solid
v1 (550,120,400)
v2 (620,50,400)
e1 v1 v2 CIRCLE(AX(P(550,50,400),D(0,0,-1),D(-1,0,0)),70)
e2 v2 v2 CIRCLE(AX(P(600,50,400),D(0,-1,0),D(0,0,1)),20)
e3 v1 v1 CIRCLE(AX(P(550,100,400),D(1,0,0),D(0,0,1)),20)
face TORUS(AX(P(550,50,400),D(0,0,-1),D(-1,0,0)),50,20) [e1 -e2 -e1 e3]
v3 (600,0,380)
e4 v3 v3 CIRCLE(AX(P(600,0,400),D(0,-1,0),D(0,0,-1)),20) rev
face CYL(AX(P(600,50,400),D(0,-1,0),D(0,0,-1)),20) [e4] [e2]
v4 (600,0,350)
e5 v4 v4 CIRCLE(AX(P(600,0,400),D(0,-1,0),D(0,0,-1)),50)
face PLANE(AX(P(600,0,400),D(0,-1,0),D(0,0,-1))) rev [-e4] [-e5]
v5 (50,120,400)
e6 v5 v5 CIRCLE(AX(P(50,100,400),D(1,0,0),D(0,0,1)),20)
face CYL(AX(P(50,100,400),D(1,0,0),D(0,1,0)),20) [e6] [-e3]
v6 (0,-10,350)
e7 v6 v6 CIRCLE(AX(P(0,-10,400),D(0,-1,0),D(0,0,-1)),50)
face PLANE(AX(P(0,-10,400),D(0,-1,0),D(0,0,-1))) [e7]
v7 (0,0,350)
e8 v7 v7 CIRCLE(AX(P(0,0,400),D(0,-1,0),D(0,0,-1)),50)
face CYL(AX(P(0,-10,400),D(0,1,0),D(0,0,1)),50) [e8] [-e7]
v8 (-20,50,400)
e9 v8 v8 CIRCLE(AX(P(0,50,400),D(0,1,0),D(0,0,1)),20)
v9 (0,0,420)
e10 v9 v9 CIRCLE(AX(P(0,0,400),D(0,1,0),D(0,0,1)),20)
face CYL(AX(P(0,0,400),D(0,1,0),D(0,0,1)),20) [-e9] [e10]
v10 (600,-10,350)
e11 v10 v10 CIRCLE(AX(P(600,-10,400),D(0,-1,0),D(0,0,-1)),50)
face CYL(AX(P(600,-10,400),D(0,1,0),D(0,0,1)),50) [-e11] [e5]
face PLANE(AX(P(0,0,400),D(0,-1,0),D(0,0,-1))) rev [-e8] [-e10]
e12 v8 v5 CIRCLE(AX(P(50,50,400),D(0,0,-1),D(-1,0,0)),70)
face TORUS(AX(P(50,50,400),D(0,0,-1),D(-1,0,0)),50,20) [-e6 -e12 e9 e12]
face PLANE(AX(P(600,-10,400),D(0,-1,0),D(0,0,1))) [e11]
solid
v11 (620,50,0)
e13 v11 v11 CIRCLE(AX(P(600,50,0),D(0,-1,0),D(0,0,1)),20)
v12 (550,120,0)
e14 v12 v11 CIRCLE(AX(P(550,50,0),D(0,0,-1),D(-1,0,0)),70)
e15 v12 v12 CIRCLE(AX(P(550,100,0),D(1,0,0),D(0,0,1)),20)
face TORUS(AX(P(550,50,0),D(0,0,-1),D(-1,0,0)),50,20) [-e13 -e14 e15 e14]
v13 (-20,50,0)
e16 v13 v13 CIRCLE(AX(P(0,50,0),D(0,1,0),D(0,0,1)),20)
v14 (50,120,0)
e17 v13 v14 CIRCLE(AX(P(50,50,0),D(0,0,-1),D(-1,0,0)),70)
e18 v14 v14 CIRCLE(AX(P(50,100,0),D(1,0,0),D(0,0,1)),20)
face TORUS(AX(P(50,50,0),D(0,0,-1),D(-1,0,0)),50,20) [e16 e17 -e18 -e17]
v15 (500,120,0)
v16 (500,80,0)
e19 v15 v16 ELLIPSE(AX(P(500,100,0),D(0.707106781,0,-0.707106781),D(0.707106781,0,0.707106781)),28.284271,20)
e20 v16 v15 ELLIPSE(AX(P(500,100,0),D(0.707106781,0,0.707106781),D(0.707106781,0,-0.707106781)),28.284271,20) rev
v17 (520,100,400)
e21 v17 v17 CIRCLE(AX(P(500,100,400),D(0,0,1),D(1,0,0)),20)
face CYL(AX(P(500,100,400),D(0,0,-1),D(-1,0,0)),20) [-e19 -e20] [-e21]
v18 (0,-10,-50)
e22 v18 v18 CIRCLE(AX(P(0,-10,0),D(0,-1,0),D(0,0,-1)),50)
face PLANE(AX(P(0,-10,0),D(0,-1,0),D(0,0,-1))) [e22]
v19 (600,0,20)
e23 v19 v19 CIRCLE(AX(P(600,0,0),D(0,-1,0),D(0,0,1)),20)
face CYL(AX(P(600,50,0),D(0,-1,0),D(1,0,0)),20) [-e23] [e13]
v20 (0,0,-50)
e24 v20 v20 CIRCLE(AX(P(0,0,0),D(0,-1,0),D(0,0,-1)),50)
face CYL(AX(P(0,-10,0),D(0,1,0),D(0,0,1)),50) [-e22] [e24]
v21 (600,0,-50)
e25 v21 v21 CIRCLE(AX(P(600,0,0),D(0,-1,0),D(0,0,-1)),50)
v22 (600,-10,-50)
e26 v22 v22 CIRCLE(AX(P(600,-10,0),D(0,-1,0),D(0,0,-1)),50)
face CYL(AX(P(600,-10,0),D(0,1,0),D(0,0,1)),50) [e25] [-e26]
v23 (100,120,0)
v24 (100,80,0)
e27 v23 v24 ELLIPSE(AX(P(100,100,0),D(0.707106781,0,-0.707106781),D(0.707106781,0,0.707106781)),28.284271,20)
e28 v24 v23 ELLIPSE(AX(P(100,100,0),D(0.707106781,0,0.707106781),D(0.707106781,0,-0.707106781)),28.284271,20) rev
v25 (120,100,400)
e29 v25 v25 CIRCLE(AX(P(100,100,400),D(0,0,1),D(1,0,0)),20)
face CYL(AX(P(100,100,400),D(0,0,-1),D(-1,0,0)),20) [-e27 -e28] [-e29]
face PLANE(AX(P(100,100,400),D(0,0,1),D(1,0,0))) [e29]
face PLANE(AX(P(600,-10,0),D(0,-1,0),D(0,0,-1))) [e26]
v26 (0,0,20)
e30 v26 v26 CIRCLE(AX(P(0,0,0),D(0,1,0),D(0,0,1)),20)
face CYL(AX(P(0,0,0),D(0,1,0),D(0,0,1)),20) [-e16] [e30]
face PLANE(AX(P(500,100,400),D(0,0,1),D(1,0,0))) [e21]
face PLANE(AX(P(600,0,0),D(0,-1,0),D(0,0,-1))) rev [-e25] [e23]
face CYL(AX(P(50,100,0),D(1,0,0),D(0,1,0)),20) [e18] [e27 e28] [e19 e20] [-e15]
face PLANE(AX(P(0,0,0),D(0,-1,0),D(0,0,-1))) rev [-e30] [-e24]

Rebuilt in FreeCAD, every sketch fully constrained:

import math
import FreeCAD as App
import Part
import Sketcher

V = App.Vector
Q = App.Units.Quantity

doc = App.newDocument("Part")
params = doc.addObject("Spreadsheet::Sheet", "Params")
for row, (alias, value) in enumerate([
    ("sketch1_diameter", "40 mm"),
    ("sketch2_radius", "50 mm"),
    ("sketch2_width", "500 mm"),
    ("sketch2_height", "50 mm"),
    ("sketch3_diameter", "100 mm"),
    ("pad1_length", "10 mm"),
    ("sketch4_diameter", "40 mm"),
    ("pad2_length", "400 mm"),
    ("sketch5_diameter", "40 mm"),
    ("sketch6_radius", "50 mm"),
    ("sketch6_width", "500 mm"),
    ("sketch6_height", "50 mm"),
    ("sketch6_height2", "60 mm"),
    ("sketch7_diameter", "100 mm"),
    ("pad3_length", "10 mm"),
], start=1):
    params.set(f"A{row}", alias)
    params.set(f"B{row}", "=" + value)
    params.setAlias(f"B{row}", alias)

body = doc.addObject("PartDesign::Body", "Body")

# Sketch on XZ plane
sketch1 = body.newObject("Sketcher::SketchObject", "Sketch")
sketch1.AttachmentSupport = (doc.getObject("XZ_Plane"), [""])
sketch1.MapMode = "FlatFace"
sketch1.addGeometry(Part.Circle(V(0, 0, 0), V(0, 0, 1), 20), False)
sketch1.addConstraint(Sketcher.Constraint("Coincident", 0, 3, -1, 1))
sketch1.addConstraint(Sketcher.Constraint("Diameter", 0, Q("40 mm")))
sketch1.setExpression("Constraints[1]", "Params.sketch1_diameter")

# Sketch on XY plane
sketch2 = body.newObject("Sketcher::SketchObject", "Sketch001")
sketch2.AttachmentSupport = (doc.getObject("XY_Plane"), [""])
sketch2.MapMode = "FlatFace"
sketch2.addGeometry(Part.LineSegment(V(0, 0, 0), V(0, 50, 0)), False)
sketch2.addGeometry(Part.ArcOfCircle(Part.Circle(V(50, 50, 0), V(0, 0, 1), 50), math.radians(90), math.radians(180)), False)
sketch2.addGeometry(Part.LineSegment(V(50, 100, 0), V(550, 100, 0)), False)
sketch2.addGeometry(Part.ArcOfCircle(Part.Circle(V(550, 50, 0), V(0, 0, 1), 50), math.radians(0), math.radians(90)), False)
sketch2.addGeometry(Part.LineSegment(V(600, 50, 0), V(600, 0, 0)), False)
sketch2.addConstraint(Sketcher.Constraint("Tangent", 0, 2, 1, 2))
sketch2.addConstraint(Sketcher.Constraint("Tangent", 1, 1, 2, 1))
sketch2.addConstraint(Sketcher.Constraint("Tangent", 2, 2, 3, 2))
sketch2.addConstraint(Sketcher.Constraint("Tangent", 3, 1, 4, 1))
sketch2.addConstraint(Sketcher.Constraint("Vertical", 0))
sketch2.addConstraint(Sketcher.Constraint("Horizontal", 2))
sketch2.addConstraint(Sketcher.Constraint("Vertical", 4))
sketch2.addConstraint(Sketcher.Constraint("Coincident", 0, 1, -1, 1))
sketch2.addConstraint(Sketcher.Constraint("Equal", 1, 3))
sketch2.addConstraint(Sketcher.Constraint("PointOnObject", 4, 2, -1))
sketch2.addConstraint(Sketcher.Constraint("Radius", 1, Q("50 mm")))
sketch2.addConstraint(Sketcher.Constraint("DistanceX", 2, 1, 2, 2, Q("500 mm")))
sketch2.addConstraint(Sketcher.Constraint("DistanceY", 0, 1, 0, 2, Q("50 mm")))
sketch2.setExpression("Constraints[10]", "Params.sketch2_radius")
sketch2.setExpression("Constraints[11]", "Params.sketch2_width")
sketch2.setExpression("Constraints[12]", "Params.sketch2_height")
doc.recompute()

additivepipe = body.newObject("PartDesign::AdditivePipe", "AdditivePipe")
additivepipe.Profile = sketch1
additivepipe.Spine = (sketch2, ["Edge1", "Edge2", "Edge3", "Edge4", "Edge5"])

# Sketch on XZ plane
sketch3 = body.newObject("Sketcher::SketchObject", "Sketch002")
sketch3.AttachmentSupport = (doc.getObject("XZ_Plane"), [""])
sketch3.MapMode = "FlatFace"
sketch3.addGeometry(Part.Circle(V(0, 0, 0), V(0, 0, 1), 50), False)
sketch3.addGeometry(Part.Circle(V(600, 0, 0), V(0, 0, 1), 50), False)
sketch3.addConstraint(Sketcher.Constraint("Coincident", 0, 3, -1, 1))
sketch3.addConstraint(Sketcher.Constraint("Equal", 0, 1))
sketch3.addConstraint(Sketcher.Constraint("PointOnObject", 1, 3, -1))
sketch3.addConstraint(Sketcher.Constraint("Diameter", 0, Q("100 mm")))
sketch3.addConstraint(Sketcher.Constraint("DistanceX", -1, 1, 1, 3, Q("600 mm")))
sketch3.setExpression("Constraints[3]", "Params.sketch3_diameter")
pad1 = body.newObject("PartDesign::Pad", "Pad")
pad1.Profile = sketch3
pad1.setExpression("Length", "Params.pad1_length")

# Sketch on XY plane
sketch4 = body.newObject("Sketcher::SketchObject", "Sketch003")
sketch4.AttachmentSupport = (doc.getObject("XY_Plane"), [""])
sketch4.MapMode = "FlatFace"
sketch4.addGeometry(Part.Circle(V(100, 100, 0), V(0, 0, 1), 20), False)
sketch4.addGeometry(Part.Circle(V(500, 100, 0), V(0, 0, 1), 20), False)
sketch4.addConstraint(Sketcher.Constraint("Equal", 0, 1))
sketch4.addConstraint(Sketcher.Constraint("Horizontal", 0, 3, 1, 3))
sketch4.addConstraint(Sketcher.Constraint("Diameter", 0, Q("40 mm")))
sketch4.addConstraint(Sketcher.Constraint("DistanceX", -1, 1, 0, 3, Q("100 mm")))
sketch4.addConstraint(Sketcher.Constraint("DistanceY", -1, 1, 0, 3, Q("100 mm")))
sketch4.addConstraint(Sketcher.Constraint("DistanceX", -1, 1, 1, 3, Q("500 mm")))
sketch4.setExpression("Constraints[2]", "Params.sketch4_diameter")
pad2 = body.newObject("PartDesign::Pad", "Pad001")
pad2.Profile = sketch4
pad2.setExpression("Length", "Params.pad2_length")
body2 = doc.addObject("PartDesign::Body", "Body001")

# Sketch on XZ plane
sketch5 = body2.newObject("Sketcher::SketchObject", "Sketch004")
sketch5.AttachmentSupport = (doc.getObject("XZ_Plane001"), [""])
sketch5.MapMode = "FlatFace"
sketch5.addGeometry(Part.Circle(V(0, 400, 0), V(0, 0, 1), 20), False)
sketch5.addConstraint(Sketcher.Constraint("PointOnObject", 0, 3, -2))
sketch5.addConstraint(Sketcher.Constraint("Diameter", 0, Q("40 mm")))
sketch5.addConstraint(Sketcher.Constraint("DistanceY", -1, 1, 0, 3, Q("400 mm")))
sketch5.setExpression("Constraints[1]", "Params.sketch5_diameter")

# Sketch on XY plane
sketch6 = body2.newObject("Sketcher::SketchObject", "Sketch005")
sketch6.AttachmentSupport = (doc.getObject("XY_Plane001"), [""])
sketch6.MapMode = "FlatFace"
sketch6.AttachmentOffset = App.Placement(V(0, 0, 400), App.Rotation())
sketch6.addGeometry(Part.LineSegment(V(0, 0, 0), V(0, 50, 0)), False)
sketch6.addGeometry(Part.ArcOfCircle(Part.Circle(V(50, 50, 0), V(0, 0, 1), 50), math.radians(90), math.radians(180)), False)
sketch6.addGeometry(Part.LineSegment(V(50, 100, 0), V(550, 100, 0)), False)
sketch6.addGeometry(Part.ArcOfCircle(Part.Circle(V(550, 50, 0), V(0, 0, 1), 50), math.radians(0), math.radians(90)), False)
sketch6.addGeometry(Part.LineSegment(V(600, 50, 0), V(600, -10, 0)), False)
sketch6.addConstraint(Sketcher.Constraint("Tangent", 0, 2, 1, 2))
sketch6.addConstraint(Sketcher.Constraint("Tangent", 1, 1, 2, 1))
sketch6.addConstraint(Sketcher.Constraint("Tangent", 2, 2, 3, 2))
sketch6.addConstraint(Sketcher.Constraint("Tangent", 3, 1, 4, 1))
sketch6.addConstraint(Sketcher.Constraint("Vertical", 0))
sketch6.addConstraint(Sketcher.Constraint("Horizontal", 2))
sketch6.addConstraint(Sketcher.Constraint("Vertical", 4))
sketch6.addConstraint(Sketcher.Constraint("Coincident", 0, 1, -1, 1))
sketch6.addConstraint(Sketcher.Constraint("Equal", 1, 3))
sketch6.addConstraint(Sketcher.Constraint("Radius", 1, Q("50 mm")))
sketch6.addConstraint(Sketcher.Constraint("DistanceX", 2, 1, 2, 2, Q("500 mm")))
sketch6.addConstraint(Sketcher.Constraint("DistanceY", 0, 1, 0, 2, Q("50 mm")))
sketch6.addConstraint(Sketcher.Constraint("DistanceY", 4, 2, 4, 1, Q("60 mm")))
sketch6.setExpression("Constraints[9]", "Params.sketch6_radius")
sketch6.setExpression("Constraints[10]", "Params.sketch6_width")
sketch6.setExpression("Constraints[11]", "Params.sketch6_height")
sketch6.setExpression("Constraints[12]", "Params.sketch6_height2")
doc.recompute()

additivepipe2 = body2.newObject("PartDesign::AdditivePipe", "AdditivePipe001")
additivepipe2.Profile = sketch5
additivepipe2.Spine = (sketch6, ["Edge1", "Edge2", "Edge3", "Edge4", "Edge5"])

# Sketch on XZ plane
sketch7 = body2.newObject("Sketcher::SketchObject", "Sketch006")
sketch7.AttachmentSupport = (doc.getObject("XZ_Plane001"), [""])
sketch7.MapMode = "FlatFace"
sketch7.addGeometry(Part.Circle(V(0, 400, 0), V(0, 0, 1), 50), False)
sketch7.addGeometry(Part.Circle(V(600, 400, 0), V(0, 0, 1), 50), False)
sketch7.addConstraint(Sketcher.Constraint("Equal", 0, 1))
sketch7.addConstraint(Sketcher.Constraint("PointOnObject", 0, 3, -2))
sketch7.addConstraint(Sketcher.Constraint("Horizontal", 0, 3, 1, 3))
sketch7.addConstraint(Sketcher.Constraint("Diameter", 0, Q("100 mm")))
sketch7.addConstraint(Sketcher.Constraint("DistanceY", -1, 1, 0, 3, Q("400 mm")))
sketch7.addConstraint(Sketcher.Constraint("DistanceX", -1, 1, 1, 3, Q("600 mm")))
sketch7.setExpression("Constraints[3]", "Params.sketch7_diameter")
pad3 = body2.newObject("PartDesign::Pad", "Pad002")
pad3.Profile = sketch7
pad3.setExpression("Length", "Params.pad3_length")

doc.recompute()
